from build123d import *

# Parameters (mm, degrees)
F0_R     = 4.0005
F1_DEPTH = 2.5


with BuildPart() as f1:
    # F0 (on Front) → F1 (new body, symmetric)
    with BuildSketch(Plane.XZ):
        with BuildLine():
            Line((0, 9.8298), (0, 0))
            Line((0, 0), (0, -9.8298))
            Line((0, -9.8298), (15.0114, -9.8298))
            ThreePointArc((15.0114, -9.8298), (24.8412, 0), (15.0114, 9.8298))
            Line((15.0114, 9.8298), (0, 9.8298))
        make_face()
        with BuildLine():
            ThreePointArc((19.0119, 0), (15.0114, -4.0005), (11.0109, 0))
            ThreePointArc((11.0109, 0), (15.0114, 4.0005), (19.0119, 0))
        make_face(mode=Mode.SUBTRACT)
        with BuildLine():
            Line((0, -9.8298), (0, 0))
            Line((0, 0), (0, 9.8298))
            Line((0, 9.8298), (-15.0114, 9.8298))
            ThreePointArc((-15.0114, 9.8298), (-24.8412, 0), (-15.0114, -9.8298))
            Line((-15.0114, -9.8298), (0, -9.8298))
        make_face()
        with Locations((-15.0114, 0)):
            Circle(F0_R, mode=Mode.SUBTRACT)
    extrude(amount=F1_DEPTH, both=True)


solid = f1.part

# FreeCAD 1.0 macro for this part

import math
import FreeCAD as App
import Part
import Sketcher

V = App.Vector
Q = App.Units.Quantity

doc = App.newDocument("Part")
params = doc.addObject("Spreadsheet::Sheet", "Params")
for row, (alias, value) in enumerate([
    ("sketch1_diameter", "0.315 in"),
    ("sketch1_radius", "0.387 in"),
    ("sketch1_width", "1.182 in"),
    ("pad1_length", "5 mm"),
], start=1):
    params.set(f"A{row}", alias)
    params.set(f"B{row}", "=" + value)
    params.setAlias(f"B{row}", alias)

body = doc.addObject("PartDesign::Body", "Body")

# Sketch on XZ plane
sketch1 = body.newObject("Sketcher::SketchObject", "Sketch")
sketch1.AttachmentSupport = (doc.getObject("XZ_Plane"), [""])
sketch1.MapMode = "FlatFace"
sketch1.addGeometry(Part.LineSegment(V(15, 9.8, 0), V(-15, 9.8, 0)), False)
sketch1.addGeometry(Part.ArcOfCircle(Part.Circle(V(-15, 0, 0), V(0, 0, 1), 9.8), math.radians(90), math.radians(270)), False)
sketch1.addGeometry(Part.LineSegment(V(-15, -9.8, 0), V(15, -9.8, 0)), False)
sketch1.addGeometry(Part.ArcOfCircle(Part.Circle(V(15, 0, 0), V(0, 0, 1), 9.8), math.radians(-90), math.radians(90)), False)
sketch1.addGeometry(Part.Circle(V(-15, 0, 0), V(0, 0, 1), 4), False)
sketch1.addGeometry(Part.Circle(V(15, 0, 0), V(0, 0, 1), 4), False)
sketch1.addConstraint(Sketcher.Constraint("Tangent", 0, 2, 1, 1))
sketch1.addConstraint(Sketcher.Constraint("Tangent", 1, 2, 2, 1))
sketch1.addConstraint(Sketcher.Constraint("Tangent", 2, 2, 3, 1))
sketch1.addConstraint(Sketcher.Constraint("Tangent", 3, 2, 0, 1))
sketch1.addConstraint(Sketcher.Constraint("Horizontal", 0))
sketch1.addConstraint(Sketcher.Constraint("Horizontal", 2))
sketch1.addConstraint(Sketcher.Constraint("Coincident", 4, 3, 1, 3))
sketch1.addConstraint(Sketcher.Constraint("Coincident", 5, 3, 3, 3))
sketch1.addConstraint(Sketcher.Constraint("Equal", 4, 5))
sketch1.addConstraint(Sketcher.Constraint("Symmetric", 1, 3, 3, 3, -1, 1))
sketch1.addConstraint(Sketcher.Constraint("Diameter", 4, Q("0.315 in")))
sketch1.addConstraint(Sketcher.Constraint("Radius", 1, Q("0.387 in")))
sketch1.addConstraint(Sketcher.Constraint("DistanceX", 0, 2, 0, 1, Q("1.182 in")))
sketch1.setExpression("Constraints[10]", "Params.sketch1_diameter")
sketch1.setExpression("Constraints[11]", "Params.sketch1_radius")
sketch1.setExpression("Constraints[12]", "Params.sketch1_width")
pad1 = body.newObject("PartDesign::Pad", "Pad")
pad1.Profile = sketch1
pad1.setExpression("Length", "Params.pad1_length")
pad1.Midplane = True

doc.recompute()
